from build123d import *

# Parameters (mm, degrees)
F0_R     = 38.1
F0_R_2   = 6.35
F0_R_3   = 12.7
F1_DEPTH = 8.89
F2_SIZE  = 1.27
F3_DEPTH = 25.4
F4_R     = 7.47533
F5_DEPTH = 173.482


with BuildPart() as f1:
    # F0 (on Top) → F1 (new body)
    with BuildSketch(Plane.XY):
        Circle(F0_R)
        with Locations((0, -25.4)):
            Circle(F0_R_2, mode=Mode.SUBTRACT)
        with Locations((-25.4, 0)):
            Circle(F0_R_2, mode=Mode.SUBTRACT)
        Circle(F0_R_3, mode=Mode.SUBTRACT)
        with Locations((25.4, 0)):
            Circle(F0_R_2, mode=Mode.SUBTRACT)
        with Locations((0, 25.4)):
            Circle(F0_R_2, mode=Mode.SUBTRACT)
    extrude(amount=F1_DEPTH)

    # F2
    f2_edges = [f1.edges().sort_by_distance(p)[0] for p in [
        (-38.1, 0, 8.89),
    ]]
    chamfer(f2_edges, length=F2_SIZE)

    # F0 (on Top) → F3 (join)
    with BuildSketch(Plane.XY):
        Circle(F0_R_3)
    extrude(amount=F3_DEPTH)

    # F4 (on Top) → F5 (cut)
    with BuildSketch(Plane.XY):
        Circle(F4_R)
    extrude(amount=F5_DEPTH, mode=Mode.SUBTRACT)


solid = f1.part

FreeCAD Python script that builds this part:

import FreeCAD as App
import Part
import Sketcher
Q = App.Units.Quantity


def edges_at(feature, points):
    """Names of the edges that pass closest to the given points."""
    edges = feature.Shape.Edges
    near = lambda p: min(range(len(edges)), key=lambda i: edges[i].distToShape(Part.Vertex(*p))[0])
    return sorted({f"Edge{near(p) + 1}" for p in points})

doc = App.newDocument("Part")
body = doc.addObject("PartDesign::Body", "Body")

# Sketch on XY plane
sketch1 = body.newObject("Sketcher::SketchObject", "Sketch")
sketch1.AttachmentSupport = (doc.getObject("XY_Plane"), [""])
sketch1.MapMode = "FlatFace"
sketch1.addGeometry(Part.Circle(App.Vector(0, 0, 0), App.Vector(0, 0, 1), 38.1), False)
sketch1.addGeometry(Part.Circle(App.Vector(0, -25.4, 0), App.Vector(0, 0, 1), 6.35), False)
sketch1.addGeometry(Part.Circle(App.Vector(-25.4, 0, 0), App.Vector(0, 0, 1), 6.35), False)
sketch1.addGeometry(Part.Circle(App.Vector(0, 0, 0), App.Vector(0, 0, 1), 12.7), False)
sketch1.addGeometry(Part.Circle(App.Vector(25.4, 0, 0), App.Vector(0, 0, 1), 6.35), False)
sketch1.addGeometry(Part.Circle(App.Vector(0, 25.4, 0), App.Vector(0, 0, 1), 6.35), False)
sketch1.addConstraint(Sketcher.Constraint("Coincident", 0, 3, -1, 1))
sketch1.addConstraint(Sketcher.Constraint("Coincident", 3, 3, -1, 1))
sketch1.addConstraint(Sketcher.Constraint("Equal", 1, 2))
sketch1.addConstraint(Sketcher.Constraint("Equal", 2, 4))
sketch1.addConstraint(Sketcher.Constraint("Equal", 4, 5))
sketch1.addConstraint(Sketcher.Constraint("Symmetric", 2, 3, 4, 3, -1, 1))
sketch1.addConstraint(Sketcher.Constraint("Symmetric", 1, 3, 5, 3, -1, 1))
sketch1.addConstraint(Sketcher.Constraint("PointOnObject", 1, 3, -2))
sketch1.addConstraint(Sketcher.Constraint("PointOnObject", 2, 3, -1))
sketch1.addConstraint(Sketcher.Constraint("Diameter", 0, Q("3 in")))
sketch1.addConstraint(Sketcher.Constraint("Diameter", 3, Q("1 in")))
sketch1.addConstraint(Sketcher.Constraint("Diameter", 1, Q("0.5 in")))
sketch1.addConstraint(Sketcher.Constraint("DistanceY", 1, 3, -1, 1, Q("1 in")))
sketch1.addConstraint(Sketcher.Constraint("DistanceX", 2, 3, -1, 1, Q("1 in")))
pad1 = body.newObject("PartDesign::Pad", "Pad")
pad1.Profile = sketch1
pad1.Length = Q("0.35 in")
doc.recompute()

chamfer = body.newObject("PartDesign::Chamfer", "Chamfer")
chamfer.Base = (pad1, edges_at(pad1, [(-38.1, 0, 8.89)]))
chamfer.Size = Q("0.05 in")

# Sketch on XY plane
sketch2 = body.newObject("Sketcher::SketchObject", "Sketch001")
sketch2.AttachmentSupport = (doc.getObject("XY_Plane"), [""])
sketch2.MapMode = "FlatFace"
sketch2.addGeometry(Part.Circle(App.Vector(0, 0, 0), App.Vector(0, 0, 1), 12.7), False)
sketch2.addConstraint(Sketcher.Constraint("Coincident", 0, 3, -1, 1))
sketch2.addConstraint(Sketcher.Constraint("Diameter", 0, Q("1 in")))
pad2 = body.newObject("PartDesign::Pad", "Pad001")
pad2.Profile = sketch2
pad2.Length = Q("1 in")

# Sketch on XY plane
sketch3 = body.newObject("Sketcher::SketchObject", "Sketch002")
sketch3.AttachmentSupport = (doc.getObject("XY_Plane"), [""])
sketch3.MapMode = "FlatFace"
sketch3.addGeometry(Part.Circle(App.Vector(0, 0, 0), App.Vector(0, 0, 1), 7.47533), False)
sketch3.addConstraint(Sketcher.Constraint("Coincident", 0, 3, -1, 1))
sketch3.addConstraint(Sketcher.Constraint("Diameter", 0, 14.95066))
pocket1 = body.newObject("PartDesign::Pocket", "Pocket")
pocket1.Profile = sketch3
pocket1.Length = Q("6.83 in")
pocket1.Reversed = True

doc.recompute()
